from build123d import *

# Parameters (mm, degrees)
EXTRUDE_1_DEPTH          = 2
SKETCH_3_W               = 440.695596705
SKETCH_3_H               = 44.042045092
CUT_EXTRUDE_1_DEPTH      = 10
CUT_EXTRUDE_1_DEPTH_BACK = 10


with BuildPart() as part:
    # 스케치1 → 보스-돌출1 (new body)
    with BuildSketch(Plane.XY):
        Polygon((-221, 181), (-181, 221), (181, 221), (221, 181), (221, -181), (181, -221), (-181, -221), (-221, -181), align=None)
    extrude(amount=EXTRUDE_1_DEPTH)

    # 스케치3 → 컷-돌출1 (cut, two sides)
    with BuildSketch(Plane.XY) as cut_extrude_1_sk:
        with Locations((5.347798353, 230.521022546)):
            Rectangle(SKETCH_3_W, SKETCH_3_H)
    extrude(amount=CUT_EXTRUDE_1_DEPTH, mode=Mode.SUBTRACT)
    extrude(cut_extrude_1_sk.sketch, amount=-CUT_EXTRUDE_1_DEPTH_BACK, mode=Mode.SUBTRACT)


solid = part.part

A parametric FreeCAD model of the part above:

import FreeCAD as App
import Part
import Sketcher
from FreeCAD import Vector
Q = App.Units.Quantity

doc = App.newDocument("Part")
params = doc.addObject("Spreadsheet::Sheet", "Params")
for row, (alias, value) in enumerate([
    ("sketch1_width", "362 mm"),
    ("pad1_length", "2 mm"),
], start=1):
    params.set(f"A{row}", alias)
    params.set(f"B{row}", "=" + value)
    params.setAlias(f"B{row}", alias)

body = doc.addObject("PartDesign::Body", "Body")

sketch1 = body.newObject("Sketcher::SketchObject", "Sketch")
sketch1.AttachmentSupport = (doc.getObject("XY_Plane"), [""])
sketch1.MapMode = "FlatFace"
sketch1.addGeometry(Part.LineSegment(Vector(-181, 221, 0), Vector(-221, 181, 0)), False)
sketch1.addGeometry(Part.LineSegment(Vector(-221, 181, 0), Vector(-221, -181, 0)), False)
sketch1.addGeometry(Part.LineSegment(Vector(-221, -181, 0), Vector(-181, -221, 0)), False)
sketch1.addGeometry(Part.LineSegment(Vector(-181, -221, 0), Vector(181, -221, 0)), False)
sketch1.addGeometry(Part.LineSegment(Vector(181, -221, 0), Vector(221, -181, 0)), False)
sketch1.addGeometry(Part.LineSegment(Vector(221, -181, 0), Vector(221, 181, 0)), False)
sketch1.addGeometry(Part.LineSegment(Vector(221, 181, 0), Vector(181, 221, 0)), False)
sketch1.addGeometry(Part.LineSegment(Vector(181, 221, 0), Vector(-181, 221, 0)), False)
sketch1.addConstraint(Sketcher.Constraint("Coincident", 0, 2, 1, 1))
sketch1.addConstraint(Sketcher.Constraint("Coincident", 1, 2, 2, 1))
sketch1.addConstraint(Sketcher.Constraint("Coincident", 2, 2, 3, 1))
sketch1.addConstraint(Sketcher.Constraint("Coincident", 3, 2, 4, 1))
sketch1.addConstraint(Sketcher.Constraint("Coincident", 4, 2, 5, 1))
sketch1.addConstraint(Sketcher.Constraint("Coincident", 5, 2, 6, 1))
sketch1.addConstraint(Sketcher.Constraint("Coincident", 6, 2, 7, 1))
sketch1.addConstraint(Sketcher.Constraint("Coincident", 7, 2, 0, 1))
sketch1.addConstraint(Sketcher.Constraint("Vertical", 1))
sketch1.addConstraint(Sketcher.Constraint("Horizontal", 3))
sketch1.addConstraint(Sketcher.Constraint("Vertical", 5))
sketch1.addConstraint(Sketcher.Constraint("Horizontal", 7))
sketch1.addConstraint(Sketcher.Constraint("Symmetric", 0, 2, 4, 2, -1, 1))
sketch1.addConstraint(Sketcher.Constraint("Symmetric", 2, 2, 6, 2, -1, 1))
sketch1.addConstraint(Sketcher.Constraint("Perpendicular", 0, 2))
sketch1.addConstraint(Sketcher.Constraint("Perpendicular", 2, 4))
sketch1.addConstraint(Sketcher.Constraint("Perpendicular", 4, 6))
sketch1.addConstraint(Sketcher.Constraint("Horizontal", 1, 2, 4, 2))
sketch1.addConstraint(Sketcher.Constraint("Vertical", 3, 2, 6, 2))
sketch1.addConstraint(Sketcher.Constraint("Equal", 7, 1))
sketch1.addConstraint(Sketcher.Constraint("DistanceX", 3, 1, 3, 2, Q("362 mm")))
sketch1.addConstraint(Sketcher.Constraint("DistanceX", 0, 2, -1, 1, Q("221 mm")))
sketch1.setExpression("Constraints[20]", "Params.sketch1_width")
pad1 = body.newObject("PartDesign::Pad", "Pad")
pad1.Profile = sketch1
pad1.setExpression("Length", "Params.pad1_length")

sketch2 = body.newObject("Sketcher::SketchObject", "Sketch001")
sketch2.AttachmentSupport = (doc.getObject("XY_Plane"), [""])
sketch2.MapMode = "FlatFace"
sketch2.addGeometry(Part.LineSegment(Vector(-215, 253, 0), Vector(-215, 208, 0)), False)
sketch2.addGeometry(Part.LineSegment(Vector(-215, 208, 0), Vector(226, 208, 0)), False)
sketch2.addGeometry(Part.LineSegment(Vector(226, 208, 0), Vector(226, 253, 0)), False)
sketch2.addGeometry(Part.LineSegment(Vector(226, 253, 0), Vector(-215, 253, 0)), False)
sketch2.addConstraint(Sketcher.Constraint("Coincident", 0, 2, 1, 1))
sketch2.addConstraint(Sketcher.Constraint("Coincident", 1, 2, 2, 1))
sketch2.addConstraint(Sketcher.Constraint("Coincident", 2, 2, 3, 1))
sketch2.addConstraint(Sketcher.Constraint("Coincident", 3, 2, 0, 1))
sketch2.addConstraint(Sketcher.Constraint("Vertical", 0))
sketch2.addConstraint(Sketcher.Constraint("Horizontal", 1))
sketch2.addConstraint(Sketcher.Constraint("Vertical", 2))
sketch2.addConstraint(Sketcher.Constraint("Horizontal", 3))
sketch2.addConstraint(Sketcher.Constraint("DistanceX", 0, 2, -1, 1, Q("215 mm")))
sketch2.addConstraint(Sketcher.Constraint("DistanceY", -1, 1, 0, 2, Q("208.5 mm")))
sketch2.addConstraint(Sketcher.Constraint("DistanceX", 1, 1, 1, 2, Q("440.695597 mm")))
sketch2.addConstraint(Sketcher.Constraint("DistanceY", 0, 2, 0, 1, Q("44.042045 mm")))
pocket1 = body.newObject("PartDesign::Pocket", "Pocket")
pocket1.Profile = sketch2
pocket1.Type = "ThroughAll"
pocket1.Midplane = True

doc.recompute()
